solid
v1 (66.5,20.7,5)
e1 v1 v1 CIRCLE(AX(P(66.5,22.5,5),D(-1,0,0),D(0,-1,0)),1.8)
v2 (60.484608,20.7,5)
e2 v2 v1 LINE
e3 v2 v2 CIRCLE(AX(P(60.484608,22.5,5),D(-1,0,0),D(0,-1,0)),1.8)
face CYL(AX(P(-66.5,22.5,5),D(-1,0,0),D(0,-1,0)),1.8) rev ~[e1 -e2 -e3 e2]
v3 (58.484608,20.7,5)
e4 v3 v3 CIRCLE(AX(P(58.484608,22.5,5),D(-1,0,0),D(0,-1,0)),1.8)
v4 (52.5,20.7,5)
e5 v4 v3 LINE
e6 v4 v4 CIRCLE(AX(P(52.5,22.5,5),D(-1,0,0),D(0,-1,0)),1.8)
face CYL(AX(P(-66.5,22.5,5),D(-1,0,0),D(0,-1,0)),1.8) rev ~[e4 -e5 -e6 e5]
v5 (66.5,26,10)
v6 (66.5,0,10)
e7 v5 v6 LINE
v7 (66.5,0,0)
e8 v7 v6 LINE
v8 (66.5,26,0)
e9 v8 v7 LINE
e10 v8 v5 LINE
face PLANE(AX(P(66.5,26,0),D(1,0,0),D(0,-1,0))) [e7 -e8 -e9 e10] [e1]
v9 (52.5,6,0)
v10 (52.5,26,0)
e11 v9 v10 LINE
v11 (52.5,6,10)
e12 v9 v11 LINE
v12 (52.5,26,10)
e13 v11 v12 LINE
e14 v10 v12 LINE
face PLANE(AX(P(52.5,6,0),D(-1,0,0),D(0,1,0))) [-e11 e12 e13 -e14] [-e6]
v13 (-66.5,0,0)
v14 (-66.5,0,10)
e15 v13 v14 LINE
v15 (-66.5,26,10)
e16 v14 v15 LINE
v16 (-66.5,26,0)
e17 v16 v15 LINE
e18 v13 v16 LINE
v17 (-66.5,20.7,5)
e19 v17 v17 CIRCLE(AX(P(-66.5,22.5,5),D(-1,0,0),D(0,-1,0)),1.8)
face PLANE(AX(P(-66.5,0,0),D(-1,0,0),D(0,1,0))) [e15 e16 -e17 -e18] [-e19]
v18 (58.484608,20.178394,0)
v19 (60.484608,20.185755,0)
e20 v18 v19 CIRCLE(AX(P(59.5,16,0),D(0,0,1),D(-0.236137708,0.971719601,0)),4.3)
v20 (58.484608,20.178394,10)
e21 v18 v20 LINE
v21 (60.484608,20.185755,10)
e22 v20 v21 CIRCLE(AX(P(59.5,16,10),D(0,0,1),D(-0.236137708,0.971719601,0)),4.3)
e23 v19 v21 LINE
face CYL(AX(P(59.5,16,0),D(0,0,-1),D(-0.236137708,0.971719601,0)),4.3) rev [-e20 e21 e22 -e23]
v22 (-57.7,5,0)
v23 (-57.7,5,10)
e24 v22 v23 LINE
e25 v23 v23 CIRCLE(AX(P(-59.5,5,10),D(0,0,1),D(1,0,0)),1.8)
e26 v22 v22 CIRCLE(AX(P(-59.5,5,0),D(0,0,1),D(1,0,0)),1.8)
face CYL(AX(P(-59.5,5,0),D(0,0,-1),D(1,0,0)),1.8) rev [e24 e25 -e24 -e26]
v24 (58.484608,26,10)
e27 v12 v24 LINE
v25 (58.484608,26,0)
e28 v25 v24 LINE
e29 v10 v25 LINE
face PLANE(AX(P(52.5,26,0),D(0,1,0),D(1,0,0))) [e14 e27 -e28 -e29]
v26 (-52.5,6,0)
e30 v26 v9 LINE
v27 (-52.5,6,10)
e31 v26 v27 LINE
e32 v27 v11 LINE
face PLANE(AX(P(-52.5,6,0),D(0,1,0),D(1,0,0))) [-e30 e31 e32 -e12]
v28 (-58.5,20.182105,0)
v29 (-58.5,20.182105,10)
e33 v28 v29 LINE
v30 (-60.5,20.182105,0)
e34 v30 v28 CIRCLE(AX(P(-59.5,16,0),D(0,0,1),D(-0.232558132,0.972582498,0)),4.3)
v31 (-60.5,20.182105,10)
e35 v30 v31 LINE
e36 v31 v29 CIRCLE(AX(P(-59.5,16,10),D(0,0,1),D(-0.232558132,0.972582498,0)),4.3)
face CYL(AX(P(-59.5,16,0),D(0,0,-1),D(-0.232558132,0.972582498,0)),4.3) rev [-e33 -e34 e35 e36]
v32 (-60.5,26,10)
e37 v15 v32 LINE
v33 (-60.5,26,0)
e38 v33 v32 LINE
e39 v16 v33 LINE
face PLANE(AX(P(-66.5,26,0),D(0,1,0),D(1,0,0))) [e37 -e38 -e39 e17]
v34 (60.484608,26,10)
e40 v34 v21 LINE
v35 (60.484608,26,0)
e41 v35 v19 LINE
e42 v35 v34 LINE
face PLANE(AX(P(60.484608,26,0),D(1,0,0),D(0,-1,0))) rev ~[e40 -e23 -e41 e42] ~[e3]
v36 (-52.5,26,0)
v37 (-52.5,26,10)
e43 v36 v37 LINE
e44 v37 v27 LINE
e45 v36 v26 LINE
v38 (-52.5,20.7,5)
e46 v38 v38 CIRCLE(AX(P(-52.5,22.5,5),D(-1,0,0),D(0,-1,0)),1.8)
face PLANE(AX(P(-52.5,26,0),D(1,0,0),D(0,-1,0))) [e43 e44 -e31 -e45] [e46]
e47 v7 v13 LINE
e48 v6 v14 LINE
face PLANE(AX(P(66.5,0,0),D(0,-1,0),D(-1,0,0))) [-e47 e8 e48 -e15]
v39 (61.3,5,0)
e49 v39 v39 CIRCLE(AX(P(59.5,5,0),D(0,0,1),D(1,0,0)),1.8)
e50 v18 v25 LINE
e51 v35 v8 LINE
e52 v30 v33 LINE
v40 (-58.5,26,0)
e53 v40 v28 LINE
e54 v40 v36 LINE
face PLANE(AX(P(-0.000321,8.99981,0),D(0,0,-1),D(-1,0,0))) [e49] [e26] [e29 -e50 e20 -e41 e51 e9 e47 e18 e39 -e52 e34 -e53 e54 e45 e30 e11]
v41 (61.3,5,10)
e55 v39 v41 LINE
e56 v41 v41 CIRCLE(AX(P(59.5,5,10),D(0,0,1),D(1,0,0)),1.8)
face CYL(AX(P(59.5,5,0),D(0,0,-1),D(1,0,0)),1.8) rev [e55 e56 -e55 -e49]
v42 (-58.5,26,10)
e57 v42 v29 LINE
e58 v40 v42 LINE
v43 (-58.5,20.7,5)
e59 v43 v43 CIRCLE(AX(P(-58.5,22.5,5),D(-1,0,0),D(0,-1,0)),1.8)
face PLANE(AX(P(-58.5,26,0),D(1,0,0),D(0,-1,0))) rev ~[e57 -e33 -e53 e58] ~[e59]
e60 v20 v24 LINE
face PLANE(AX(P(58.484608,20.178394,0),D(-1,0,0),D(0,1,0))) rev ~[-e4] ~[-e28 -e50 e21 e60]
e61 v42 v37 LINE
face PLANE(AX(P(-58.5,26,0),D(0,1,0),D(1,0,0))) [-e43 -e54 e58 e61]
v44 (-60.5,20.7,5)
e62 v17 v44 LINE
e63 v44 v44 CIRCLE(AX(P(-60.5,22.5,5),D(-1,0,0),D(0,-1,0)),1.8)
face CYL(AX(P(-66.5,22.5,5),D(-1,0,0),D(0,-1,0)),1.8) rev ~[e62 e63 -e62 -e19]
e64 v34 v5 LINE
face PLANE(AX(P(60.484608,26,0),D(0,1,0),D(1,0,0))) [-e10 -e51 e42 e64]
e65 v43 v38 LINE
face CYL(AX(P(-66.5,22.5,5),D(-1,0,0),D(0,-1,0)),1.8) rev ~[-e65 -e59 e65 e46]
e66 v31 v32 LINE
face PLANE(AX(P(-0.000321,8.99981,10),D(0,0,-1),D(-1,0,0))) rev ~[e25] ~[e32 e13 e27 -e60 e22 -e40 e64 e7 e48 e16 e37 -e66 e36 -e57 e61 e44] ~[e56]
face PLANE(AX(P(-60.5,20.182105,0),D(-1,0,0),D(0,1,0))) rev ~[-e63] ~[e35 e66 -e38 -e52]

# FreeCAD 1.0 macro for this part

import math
import FreeCAD as App
import Part
import Sketcher

V = App.Vector
Q = App.Units.Quantity

doc = App.newDocument("Part")
params = doc.addObject("Spreadsheet::Sheet", "Params")
for row, (alias, value) in enumerate([
    ("sketch1_diameter", "3.6 mm"),
    ("sketch1_radius", "4.3 mm"),
    ("sketch1_width", "6 mm"),
    ("sketch1_width2", "133 mm"),
    ("sketch1_width3", "105 mm"),
    ("pad1_length", "10 mm"),
    ("sketch2_diameter", "3.6 mm"),
], start=1):
    params.set(f"A{row}", alias)
    params.set(f"B{row}", "=" + value)
    params.setAlias(f"B{row}", alias)

body = doc.addObject("PartDesign::Body", "Body")

sketch1 = doc.addObject("Sketcher::SketchObject", "Sketch")
body.addObject(sketch1)
sketch1.AttachmentSupport = (doc.XY_Plane, [""])
sketch1.MapMode = "FlatFace"
sketch1.addGeometry([
    Part.ArcOfCircle(Part.Circle(V(-59.5, 16, 0), V(0, 0, 1), 4.3), math.radians(103), math.radians(437)),
    Part.LineSegment(V(-60.5, 20.2, 0), V(-60.5, 26, 0)),
    Part.LineSegment(V(-60.5, 26, 0), V(-66.5, 26, 0)),
    Part.LineSegment(V(-66.5, 26, 0), V(-66.5, 0, 0)),
    Part.LineSegment(V(-66.5, 0, 0), V(66.5, 0, 0)),
    Part.LineSegment(V(66.5, 0, 0), V(66.5, 26, 0)),
    Part.LineSegment(V(66.5, 26, 0), V(60.5, 26, 0)),
    Part.LineSegment(V(60.5, 26, 0), V(60.5, 20.2, 0)),
    Part.ArcOfCircle(Part.Circle(V(59.5, 16, 0), V(0, 0, 1), 4.3), math.radians(104), math.radians(437)),
    Part.LineSegment(V(58.5, 20.2, 0), V(58.5, 26, 0)),
    Part.LineSegment(V(58.5, 26, 0), V(52.5, 26, 0)),
    Part.LineSegment(V(52.5, 26, 0), V(52.5, 6, 0)),
    Part.LineSegment(V(52.5, 6, 0), V(-52.5, 6, 0)),
    Part.LineSegment(V(-52.5, 6, 0), V(-52.5, 26, 0)),
    Part.LineSegment(V(-52.5, 26, 0), V(-58.5, 26, 0)),
    Part.LineSegment(V(-58.5, 26, 0), V(-58.5, 20.2, 0)),
    Part.Circle(V(59.5, 5, 0), V(0, 0, 1), 1.8),
    Part.Circle(V(-59.5, 5, 0), V(0, 0, 1), 1.8),
], False)
sketch1.addConstraint([
    Sketcher.Constraint("Coincident", 0, 1, 1, 1),
    Sketcher.Constraint("Coincident", 1, 2, 2, 1),
    Sketcher.Constraint("Coincident", 2, 2, 3, 1),
    Sketcher.Constraint("Coincident", 3, 2, 4, 1),
    Sketcher.Constraint("Coincident", 4, 2, 5, 1),
    Sketcher.Constraint("Coincident", 5, 2, 6, 1),
    Sketcher.Constraint("Coincident", 6, 2, 7, 1),
    Sketcher.Constraint("Coincident", 7, 2, 8, 2),
    Sketcher.Constraint("Coincident", 8, 1, 9, 1),
    Sketcher.Constraint("Coincident", 9, 2, 10, 1),
    Sketcher.Constraint("Coincident", 10, 2, 11, 1),
    Sketcher.Constraint("Coincident", 11, 2, 12, 1),
    Sketcher.Constraint("Coincident", 12, 2, 13, 1),
    Sketcher.Constraint("Coincident", 13, 2, 14, 1),
    Sketcher.Constraint("Coincident", 14, 2, 15, 1),
    Sketcher.Constraint("Coincident", 15, 2, 0, 2),
    Sketcher.Constraint("Vertical", 1),
    Sketcher.Constraint("Horizontal", 2),
    Sketcher.Constraint("Vertical", 3),
    Sketcher.Constraint("Horizontal", 4),
    Sketcher.Constraint("Vertical", 5),
    Sketcher.Constraint("Horizontal", 6),
    Sketcher.Constraint("Vertical", 7),
    Sketcher.Constraint("Vertical", 9),
    Sketcher.Constraint("Horizontal", 10),
    Sketcher.Constraint("Vertical", 11),
    Sketcher.Constraint("Horizontal", 12),
    Sketcher.Constraint("Vertical", 13),
    Sketcher.Constraint("Horizontal", 14),
    Sketcher.Constraint("Vertical", 15),
    Sketcher.Constraint("Equal", 0, 8),
    Sketcher.Constraint("Equal", 16, 17),
    Sketcher.Constraint("Symmetric", 3, 2, 4, 2, -1, 1),
    Sketcher.Constraint("Symmetric", 0, 3, 8, 3, -2),
    Sketcher.Constraint("Symmetric", 16, 3, 17, 3, -2),
    Sketcher.Constraint("Symmetric", 10, 2, 13, 2, -2),
    Sketcher.Constraint("Horizontal", 2, 2, 5, 2),
    Sketcher.Constraint("Horizontal", 6, 2, 9, 2),
    Sketcher.Constraint("Horizontal", 0, 1, 15, 2),
    Sketcher.Constraint("Vertical", 8, 3, 16, 3),
    Sketcher.Constraint("Equal", 2, 14),
    Sketcher.Constraint("Diameter", 16, Q("3.6 mm")),
    Sketcher.Constraint("Radius", 0, Q("4.3 mm")),
    Sketcher.Constraint("DistanceX", 2, 2, 2, 1, Q("6 mm")),
    Sketcher.Constraint("DistanceX", 4, 1, 4, 2, Q("133 mm")),
    Sketcher.Constraint("DistanceX", 12, 2, 12, 1, Q("105 mm")),
    Sketcher.Constraint("DistanceY", 3, 2, 3, 1, Q("26 mm")),
    Sketcher.Constraint("DistanceY", 11, 2, 11, 1, Q("20 mm")),
    Sketcher.Constraint("DistanceY", -1, 1, 0, 3, Q("16 mm")),
    Sketcher.Constraint("DistanceY", -1, 1, 16, 3, Q("5 mm")),
    Sketcher.Constraint("DistanceX", 8, 1, 7, 2, Q("2 mm")),
    Sketcher.Constraint("DistanceX", 6, 2, 6, 1, Q("6.015392 mm")),
])
sketch1.setExpression("Constraints[41]", "Params.sketch1_diameter")
sketch1.setExpression("Constraints[42]", "Params.sketch1_radius")
sketch1.setExpression("Constraints[43]", "Params.sketch1_width")
sketch1.setExpression("Constraints[44]", "Params.sketch1_width2")
sketch1.setExpression("Constraints[45]", "Params.sketch1_width3")
pad1 = doc.addObject("PartDesign::Pad", "Pad")
body.addObject(pad1)
pad1.Profile = sketch1
pad1.setExpression("Length", "Params.pad1_length")

sketch2 = doc.addObject("Sketcher::SketchObject", "Sketch001")
body.addObject(sketch2)
sketch2.AttachmentSupport = (doc.YZ_Plane, [""])
sketch2.MapMode = "FlatFace"
sketch2.AttachmentOffset = App.Placement(V(0, 0, -66.5), App.Rotation())
sketch2.addGeometry(Part.Circle(V(22.5, 5, 0), V(0, 0, 1), 1.8), False)
sketch2.addConstraint([
    Sketcher.Constraint("Diameter", 0, Q("3.6 mm")),
    Sketcher.Constraint("DistanceY", -1, 1, 0, 3, Q("5 mm")),
    Sketcher.Constraint("DistanceX", -1, 1, 0, 3, Q("22.5 mm")),
])
sketch2.setExpression("Constraints[0]", "Params.sketch2_diameter")
pocket1 = doc.addObject("PartDesign::Pocket", "Pocket")
body.addObject(pocket1)
pocket1.Profile = sketch2
pocket1.Type = "ThroughAll"
pocket1.Reversed = True

doc.recompute()
